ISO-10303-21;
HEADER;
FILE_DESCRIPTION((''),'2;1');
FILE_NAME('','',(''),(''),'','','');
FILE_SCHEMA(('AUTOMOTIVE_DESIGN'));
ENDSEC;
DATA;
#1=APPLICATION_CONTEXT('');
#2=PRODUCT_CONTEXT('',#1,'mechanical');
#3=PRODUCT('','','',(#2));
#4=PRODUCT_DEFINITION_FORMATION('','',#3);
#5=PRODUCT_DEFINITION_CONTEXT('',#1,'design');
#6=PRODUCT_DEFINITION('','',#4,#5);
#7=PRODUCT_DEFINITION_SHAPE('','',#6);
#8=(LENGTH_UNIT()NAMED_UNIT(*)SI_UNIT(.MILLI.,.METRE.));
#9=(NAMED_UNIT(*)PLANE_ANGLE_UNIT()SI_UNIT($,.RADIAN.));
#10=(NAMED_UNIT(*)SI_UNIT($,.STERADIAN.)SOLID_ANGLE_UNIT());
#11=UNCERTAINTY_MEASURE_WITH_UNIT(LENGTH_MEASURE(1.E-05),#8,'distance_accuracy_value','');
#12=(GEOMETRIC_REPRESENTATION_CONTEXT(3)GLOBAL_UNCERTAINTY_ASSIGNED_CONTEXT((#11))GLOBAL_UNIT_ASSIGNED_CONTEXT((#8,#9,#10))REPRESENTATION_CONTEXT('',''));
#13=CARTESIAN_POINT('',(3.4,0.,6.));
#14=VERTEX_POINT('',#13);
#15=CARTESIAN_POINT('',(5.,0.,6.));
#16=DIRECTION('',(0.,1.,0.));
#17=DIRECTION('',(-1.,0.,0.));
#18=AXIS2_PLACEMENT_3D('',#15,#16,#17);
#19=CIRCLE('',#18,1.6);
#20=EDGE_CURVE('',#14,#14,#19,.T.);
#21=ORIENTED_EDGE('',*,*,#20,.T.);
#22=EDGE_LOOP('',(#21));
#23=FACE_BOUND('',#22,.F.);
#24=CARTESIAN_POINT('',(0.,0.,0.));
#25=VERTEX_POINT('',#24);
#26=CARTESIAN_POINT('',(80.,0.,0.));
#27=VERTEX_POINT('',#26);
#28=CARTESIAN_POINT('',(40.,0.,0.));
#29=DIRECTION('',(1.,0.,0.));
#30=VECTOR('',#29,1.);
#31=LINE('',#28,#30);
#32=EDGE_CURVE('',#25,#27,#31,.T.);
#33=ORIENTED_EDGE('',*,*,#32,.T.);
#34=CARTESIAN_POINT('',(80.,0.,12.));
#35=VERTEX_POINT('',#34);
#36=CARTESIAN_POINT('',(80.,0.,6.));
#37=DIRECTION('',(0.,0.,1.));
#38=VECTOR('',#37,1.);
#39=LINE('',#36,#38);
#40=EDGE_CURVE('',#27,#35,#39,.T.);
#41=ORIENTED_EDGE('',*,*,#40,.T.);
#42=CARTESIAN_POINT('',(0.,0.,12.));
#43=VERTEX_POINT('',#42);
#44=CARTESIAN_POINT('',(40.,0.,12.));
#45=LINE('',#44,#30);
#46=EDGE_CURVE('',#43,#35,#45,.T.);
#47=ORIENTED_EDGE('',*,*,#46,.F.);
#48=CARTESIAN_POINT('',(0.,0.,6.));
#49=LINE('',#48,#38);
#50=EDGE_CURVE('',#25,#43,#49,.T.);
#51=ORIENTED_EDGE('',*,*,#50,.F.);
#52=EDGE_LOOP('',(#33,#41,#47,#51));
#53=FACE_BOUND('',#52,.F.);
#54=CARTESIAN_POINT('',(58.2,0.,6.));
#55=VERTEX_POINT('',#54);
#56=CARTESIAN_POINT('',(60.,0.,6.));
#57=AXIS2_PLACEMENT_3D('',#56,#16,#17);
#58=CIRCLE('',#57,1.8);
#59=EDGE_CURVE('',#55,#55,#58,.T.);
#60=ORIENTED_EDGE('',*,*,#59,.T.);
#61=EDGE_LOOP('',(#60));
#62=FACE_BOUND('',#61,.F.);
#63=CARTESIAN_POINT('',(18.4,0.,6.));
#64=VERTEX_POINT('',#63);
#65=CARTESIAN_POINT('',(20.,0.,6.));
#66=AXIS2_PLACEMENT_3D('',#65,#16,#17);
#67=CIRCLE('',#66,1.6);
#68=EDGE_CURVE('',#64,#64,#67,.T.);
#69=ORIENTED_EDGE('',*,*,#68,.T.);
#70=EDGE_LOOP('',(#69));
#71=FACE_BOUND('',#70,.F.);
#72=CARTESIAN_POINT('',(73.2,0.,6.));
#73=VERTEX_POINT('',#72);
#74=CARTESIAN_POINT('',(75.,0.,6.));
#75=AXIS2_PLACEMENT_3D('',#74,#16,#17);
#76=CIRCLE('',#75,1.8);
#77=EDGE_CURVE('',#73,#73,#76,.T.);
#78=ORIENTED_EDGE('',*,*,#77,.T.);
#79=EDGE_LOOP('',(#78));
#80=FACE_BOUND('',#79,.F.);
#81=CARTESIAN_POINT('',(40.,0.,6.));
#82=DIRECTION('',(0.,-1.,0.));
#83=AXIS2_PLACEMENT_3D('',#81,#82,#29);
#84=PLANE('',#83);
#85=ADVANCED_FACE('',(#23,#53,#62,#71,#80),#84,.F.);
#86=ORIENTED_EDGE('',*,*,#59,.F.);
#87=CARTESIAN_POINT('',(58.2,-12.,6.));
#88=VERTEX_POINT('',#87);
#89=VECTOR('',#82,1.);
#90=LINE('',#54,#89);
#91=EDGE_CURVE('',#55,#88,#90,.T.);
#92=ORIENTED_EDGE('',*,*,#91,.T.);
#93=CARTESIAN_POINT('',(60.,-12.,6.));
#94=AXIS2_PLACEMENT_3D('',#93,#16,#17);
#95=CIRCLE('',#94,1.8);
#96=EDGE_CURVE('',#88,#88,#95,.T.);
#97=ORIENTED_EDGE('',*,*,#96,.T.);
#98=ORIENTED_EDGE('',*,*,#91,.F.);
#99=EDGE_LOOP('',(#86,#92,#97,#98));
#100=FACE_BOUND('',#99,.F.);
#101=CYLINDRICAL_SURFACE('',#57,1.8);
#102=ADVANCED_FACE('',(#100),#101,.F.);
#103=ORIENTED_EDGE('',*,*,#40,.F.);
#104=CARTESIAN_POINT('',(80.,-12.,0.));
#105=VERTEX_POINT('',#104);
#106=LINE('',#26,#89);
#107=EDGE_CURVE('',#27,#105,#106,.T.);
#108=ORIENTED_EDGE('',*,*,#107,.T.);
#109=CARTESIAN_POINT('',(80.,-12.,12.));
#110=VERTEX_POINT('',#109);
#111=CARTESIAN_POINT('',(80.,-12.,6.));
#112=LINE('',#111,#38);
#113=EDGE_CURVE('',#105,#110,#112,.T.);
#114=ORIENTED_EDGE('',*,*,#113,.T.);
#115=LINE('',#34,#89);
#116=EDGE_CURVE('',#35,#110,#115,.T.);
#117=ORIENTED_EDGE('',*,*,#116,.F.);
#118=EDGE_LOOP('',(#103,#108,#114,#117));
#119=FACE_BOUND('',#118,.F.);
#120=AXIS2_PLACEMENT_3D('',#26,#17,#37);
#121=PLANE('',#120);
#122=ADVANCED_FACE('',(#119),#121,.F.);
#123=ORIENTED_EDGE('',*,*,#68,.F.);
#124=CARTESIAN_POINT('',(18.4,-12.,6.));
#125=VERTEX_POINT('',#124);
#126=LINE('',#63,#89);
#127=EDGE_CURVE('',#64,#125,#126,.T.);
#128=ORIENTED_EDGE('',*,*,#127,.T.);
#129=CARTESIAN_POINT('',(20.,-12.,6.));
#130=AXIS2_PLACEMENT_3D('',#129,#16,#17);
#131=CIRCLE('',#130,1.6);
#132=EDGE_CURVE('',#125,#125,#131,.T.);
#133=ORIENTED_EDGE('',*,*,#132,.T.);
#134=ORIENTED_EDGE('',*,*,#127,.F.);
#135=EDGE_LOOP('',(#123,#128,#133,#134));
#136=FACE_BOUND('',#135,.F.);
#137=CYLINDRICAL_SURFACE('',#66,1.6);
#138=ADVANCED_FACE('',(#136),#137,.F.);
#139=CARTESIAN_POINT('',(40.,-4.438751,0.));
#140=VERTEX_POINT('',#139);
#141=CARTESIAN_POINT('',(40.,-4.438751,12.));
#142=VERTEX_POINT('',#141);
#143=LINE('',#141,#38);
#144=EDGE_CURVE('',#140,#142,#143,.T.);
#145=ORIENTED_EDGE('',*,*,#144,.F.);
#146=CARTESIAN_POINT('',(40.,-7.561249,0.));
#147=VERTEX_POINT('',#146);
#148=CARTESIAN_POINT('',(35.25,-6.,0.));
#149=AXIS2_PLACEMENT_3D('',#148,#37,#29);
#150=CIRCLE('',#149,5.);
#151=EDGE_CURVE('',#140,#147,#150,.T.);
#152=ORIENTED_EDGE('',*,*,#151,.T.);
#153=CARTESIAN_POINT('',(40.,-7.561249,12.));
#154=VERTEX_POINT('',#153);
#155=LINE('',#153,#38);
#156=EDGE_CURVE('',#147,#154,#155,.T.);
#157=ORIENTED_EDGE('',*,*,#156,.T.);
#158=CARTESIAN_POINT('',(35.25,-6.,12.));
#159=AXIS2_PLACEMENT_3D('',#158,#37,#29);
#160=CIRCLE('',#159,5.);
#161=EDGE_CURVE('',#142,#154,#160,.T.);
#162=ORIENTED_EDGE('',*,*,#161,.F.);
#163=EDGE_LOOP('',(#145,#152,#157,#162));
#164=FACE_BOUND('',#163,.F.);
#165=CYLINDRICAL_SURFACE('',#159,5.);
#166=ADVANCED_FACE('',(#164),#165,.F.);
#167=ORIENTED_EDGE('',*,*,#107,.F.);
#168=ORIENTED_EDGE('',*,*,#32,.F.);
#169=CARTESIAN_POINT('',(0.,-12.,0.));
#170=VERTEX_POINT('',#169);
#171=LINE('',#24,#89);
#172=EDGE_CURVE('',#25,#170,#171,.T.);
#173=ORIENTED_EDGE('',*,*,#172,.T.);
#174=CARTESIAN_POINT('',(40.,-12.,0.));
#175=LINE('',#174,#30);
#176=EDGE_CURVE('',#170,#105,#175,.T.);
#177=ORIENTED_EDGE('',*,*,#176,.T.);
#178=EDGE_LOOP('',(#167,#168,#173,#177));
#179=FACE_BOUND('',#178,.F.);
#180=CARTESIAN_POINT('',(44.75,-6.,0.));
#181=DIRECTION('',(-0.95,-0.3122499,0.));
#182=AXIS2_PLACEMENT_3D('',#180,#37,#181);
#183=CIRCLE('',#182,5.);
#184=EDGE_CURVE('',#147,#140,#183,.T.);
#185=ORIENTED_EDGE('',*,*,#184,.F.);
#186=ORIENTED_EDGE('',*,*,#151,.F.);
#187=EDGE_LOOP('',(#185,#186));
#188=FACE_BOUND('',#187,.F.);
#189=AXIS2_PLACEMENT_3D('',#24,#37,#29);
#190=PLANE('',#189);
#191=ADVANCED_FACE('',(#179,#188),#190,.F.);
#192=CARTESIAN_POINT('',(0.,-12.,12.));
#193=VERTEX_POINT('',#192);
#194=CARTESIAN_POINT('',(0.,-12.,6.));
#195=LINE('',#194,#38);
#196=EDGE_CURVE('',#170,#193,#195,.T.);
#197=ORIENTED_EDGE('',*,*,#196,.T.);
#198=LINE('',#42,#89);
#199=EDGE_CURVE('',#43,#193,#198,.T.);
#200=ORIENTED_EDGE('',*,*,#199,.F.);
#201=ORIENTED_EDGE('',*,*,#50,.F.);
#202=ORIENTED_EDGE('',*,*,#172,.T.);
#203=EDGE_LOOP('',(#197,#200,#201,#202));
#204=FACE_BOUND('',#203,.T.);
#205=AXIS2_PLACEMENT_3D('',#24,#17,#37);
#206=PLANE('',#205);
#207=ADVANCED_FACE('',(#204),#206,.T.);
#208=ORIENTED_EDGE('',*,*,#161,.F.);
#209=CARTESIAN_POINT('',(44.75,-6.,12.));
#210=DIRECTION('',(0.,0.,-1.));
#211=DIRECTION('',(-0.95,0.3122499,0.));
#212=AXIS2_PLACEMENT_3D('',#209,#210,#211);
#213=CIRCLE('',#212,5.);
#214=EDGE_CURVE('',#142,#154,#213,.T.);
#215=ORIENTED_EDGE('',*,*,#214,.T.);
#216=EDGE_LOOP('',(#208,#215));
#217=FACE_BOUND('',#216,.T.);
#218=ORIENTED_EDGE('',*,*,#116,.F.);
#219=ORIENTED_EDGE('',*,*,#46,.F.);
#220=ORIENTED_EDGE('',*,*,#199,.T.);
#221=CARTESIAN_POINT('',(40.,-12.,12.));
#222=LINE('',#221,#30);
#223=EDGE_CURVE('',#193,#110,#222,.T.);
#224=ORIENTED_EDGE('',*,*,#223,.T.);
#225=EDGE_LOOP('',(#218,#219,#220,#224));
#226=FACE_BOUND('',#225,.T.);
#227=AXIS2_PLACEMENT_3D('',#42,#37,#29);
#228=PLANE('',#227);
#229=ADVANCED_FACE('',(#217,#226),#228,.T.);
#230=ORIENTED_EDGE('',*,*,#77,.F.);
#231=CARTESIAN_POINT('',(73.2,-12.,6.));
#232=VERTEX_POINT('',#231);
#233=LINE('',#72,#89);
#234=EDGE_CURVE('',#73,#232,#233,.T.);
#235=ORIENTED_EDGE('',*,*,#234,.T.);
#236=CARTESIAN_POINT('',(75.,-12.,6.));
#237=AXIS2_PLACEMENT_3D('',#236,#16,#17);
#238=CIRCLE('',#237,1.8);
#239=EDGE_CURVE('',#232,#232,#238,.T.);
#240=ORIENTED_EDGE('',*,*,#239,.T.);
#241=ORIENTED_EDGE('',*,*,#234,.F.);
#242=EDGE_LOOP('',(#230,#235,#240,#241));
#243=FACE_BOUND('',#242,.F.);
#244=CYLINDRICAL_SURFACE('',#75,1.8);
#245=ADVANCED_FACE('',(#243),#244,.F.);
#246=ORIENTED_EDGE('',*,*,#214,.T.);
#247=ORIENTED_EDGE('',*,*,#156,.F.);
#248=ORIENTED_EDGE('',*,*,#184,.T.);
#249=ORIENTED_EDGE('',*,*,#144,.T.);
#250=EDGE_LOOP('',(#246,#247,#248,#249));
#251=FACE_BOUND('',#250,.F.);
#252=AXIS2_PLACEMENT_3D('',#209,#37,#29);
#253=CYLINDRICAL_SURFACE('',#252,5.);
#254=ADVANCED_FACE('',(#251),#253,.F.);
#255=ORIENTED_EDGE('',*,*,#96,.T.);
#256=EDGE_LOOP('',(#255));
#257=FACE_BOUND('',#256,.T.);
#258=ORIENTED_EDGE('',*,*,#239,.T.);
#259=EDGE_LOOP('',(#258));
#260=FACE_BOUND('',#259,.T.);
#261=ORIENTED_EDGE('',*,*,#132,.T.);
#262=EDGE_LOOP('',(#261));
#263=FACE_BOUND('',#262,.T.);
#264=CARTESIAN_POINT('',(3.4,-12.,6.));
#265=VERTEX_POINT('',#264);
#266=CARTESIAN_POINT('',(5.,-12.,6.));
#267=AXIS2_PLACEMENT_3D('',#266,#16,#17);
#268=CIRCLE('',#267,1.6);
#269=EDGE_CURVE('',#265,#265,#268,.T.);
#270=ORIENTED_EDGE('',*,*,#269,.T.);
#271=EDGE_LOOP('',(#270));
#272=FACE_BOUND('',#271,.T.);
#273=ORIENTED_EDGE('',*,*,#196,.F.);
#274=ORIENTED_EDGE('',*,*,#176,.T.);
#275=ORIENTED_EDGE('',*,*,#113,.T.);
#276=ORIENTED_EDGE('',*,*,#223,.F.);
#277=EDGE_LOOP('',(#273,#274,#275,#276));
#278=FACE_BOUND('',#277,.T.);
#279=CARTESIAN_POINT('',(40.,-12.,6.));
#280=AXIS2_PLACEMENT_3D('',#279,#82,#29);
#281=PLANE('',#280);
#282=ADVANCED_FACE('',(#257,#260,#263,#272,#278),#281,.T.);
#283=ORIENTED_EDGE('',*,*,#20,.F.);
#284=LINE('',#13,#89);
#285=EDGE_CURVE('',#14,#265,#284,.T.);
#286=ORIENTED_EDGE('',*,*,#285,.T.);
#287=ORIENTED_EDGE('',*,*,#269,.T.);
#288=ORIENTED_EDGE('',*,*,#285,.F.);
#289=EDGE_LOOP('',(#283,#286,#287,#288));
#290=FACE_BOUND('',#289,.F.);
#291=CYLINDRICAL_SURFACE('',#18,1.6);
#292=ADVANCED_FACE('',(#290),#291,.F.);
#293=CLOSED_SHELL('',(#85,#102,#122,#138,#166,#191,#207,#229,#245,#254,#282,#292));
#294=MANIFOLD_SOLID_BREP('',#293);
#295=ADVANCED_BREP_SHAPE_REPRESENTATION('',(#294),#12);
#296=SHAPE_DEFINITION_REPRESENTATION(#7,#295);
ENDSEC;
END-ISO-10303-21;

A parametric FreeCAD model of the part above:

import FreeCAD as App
import Part
import Sketcher

doc = App.newDocument("Part")
body = doc.addObject("PartDesign::Body", "Body")

sketch1 = doc.addObject("Sketcher::SketchObject", "Sketch")
body.addObject(sketch1)
sketch1.AttachmentSupport = (doc.XZ_Plane, [""])
sketch1.MapMode = "FlatFace"
sketch1.addGeometry([
    Part.LineSegment(App.Vector(0, 12, 0), App.Vector(0, 0, 0)),
    Part.LineSegment(App.Vector(0, 0, 0), App.Vector(80, 0, 0)),
    Part.LineSegment(App.Vector(80, 0, 0), App.Vector(80, 12, 0)),
    Part.LineSegment(App.Vector(80, 12, 0), App.Vector(0, 12, 0)),
], False)
sketch1.addConstraint([
    Sketcher.Constraint("Coincident", 0, 2, 1, 1),
    Sketcher.Constraint("Coincident", 1, 2, 2, 1),
    Sketcher.Constraint("Coincident", 2, 2, 3, 1),
    Sketcher.Constraint("Coincident", 3, 2, 0, 1),
    Sketcher.Constraint("Vertical", 0),
    Sketcher.Constraint("Horizontal", 1),
    Sketcher.Constraint("Vertical", 2),
    Sketcher.Constraint("Horizontal", 3),
    Sketcher.Constraint("Coincident", 0, 2, -1, 1),
    Sketcher.Constraint("DistanceX", 1, 1, 1, 2, 80.0),
    Sketcher.Constraint("DistanceY", 0, 2, 0, 1, 12.0),
])
pad1 = doc.addObject("PartDesign::Pad", "Pad")
body.addObject(pad1)
pad1.Profile = sketch1
pad1.Length = 12

sketch2 = doc.addObject("Sketcher::SketchObject", "Sketch001")
body.addObject(sketch2)
sketch2.AttachmentSupport = (doc.XY_Plane, [""])
sketch2.MapMode = "FlatFace"
sketch2.AttachmentOffset = App.Placement(App.Vector(0, 0, 12), App.Rotation())
sketch2.addGeometry(Part.Circle(App.Vector(45, -6, 0), App.Vector(0, 0, 1), 5), False)
sketch2.addConstraint([
    Sketcher.Constraint("Diameter", 0, 10.0),
    Sketcher.Constraint("DistanceY", 0, 3, -1, 1, 6.0),
    Sketcher.Constraint("DistanceX", -1, 1, 0, 3, 44.75),
])
pocket1 = doc.addObject("PartDesign::Pocket", "Pocket")
body.addObject(pocket1)
pocket1.Profile = sketch2
pocket1.Length = 25

sketch3 = doc.addObject("Sketcher::SketchObject", "Sketch002")
body.addObject(sketch3)
sketch3.AttachmentSupport = (doc.XY_Plane, [""])
sketch3.MapMode = "FlatFace"
sketch3.AttachmentOffset = App.Placement(App.Vector(0, 0, 12), App.Rotation())
sketch3.addGeometry(Part.Circle(App.Vector(35, -6, 0), App.Vector(0, 0, 1), 5), False)
sketch3.addConstraint([
    Sketcher.Constraint("Diameter", 0, 10.0),
    Sketcher.Constraint("DistanceY", 0, 3, -1, 1, 6.0),
    Sketcher.Constraint("DistanceX", -1, 1, 0, 3, 35.25),
])
pocket2 = doc.addObject("PartDesign::Pocket", "Pocket001")
body.addObject(pocket2)
pocket2.Profile = sketch3
pocket2.Length = 25

sketch4 = doc.addObject("Sketcher::SketchObject", "Sketch003")
body.addObject(sketch4)
sketch4.AttachmentSupport = (doc.XZ_Plane, [""])
sketch4.MapMode = "FlatFace"
sketch4.addGeometry([
    Part.Circle(App.Vector(5, 6, 0), App.Vector(0, 0, 1), 1.6),
    Part.Circle(App.Vector(20, 6, 0), App.Vector(0, 0, 1), 1.6),
    Part.Circle(App.Vector(75, 6, 0), App.Vector(0, 0, 1), 1.8),
    Part.Circle(App.Vector(60, 6, 0), App.Vector(0, 0, 1), 1.8),
], False)
sketch4.addConstraint([
    Sketcher.Constraint("Equal", 0, 1),
    Sketcher.Constraint("Equal", 2, 3),
    Sketcher.Constraint("Horizontal", 0, 3, 1, 3),
    Sketcher.Constraint("Horizontal", 1, 3, 2, 3),
    Sketcher.Constraint("Horizontal", 2, 3, 3, 3),
    Sketcher.Constraint("Diameter", 0, 3.2),
    Sketcher.Constraint("Diameter", 2, 3.6),
    Sketcher.Constraint("DistanceX", -1, 1, 0, 3, 5.0),
    Sketcher.Constraint("DistanceY", -1, 1, 0, 3, 6.0),
    Sketcher.Constraint("DistanceX", -1, 1, 1, 3, 20.0),
    Sketcher.Constraint("DistanceX", -1, 1, 2, 3, 75.0),
    Sketcher.Constraint("DistanceX", -1, 1, 3, 3, 60.0),
])
pocket3 = doc.addObject("PartDesign::Pocket", "Pocket002")
body.addObject(pocket3)
pocket3.Profile = sketch4
pocket3.Length = 25
pocket3.Reversed = True

doc.recompute()
